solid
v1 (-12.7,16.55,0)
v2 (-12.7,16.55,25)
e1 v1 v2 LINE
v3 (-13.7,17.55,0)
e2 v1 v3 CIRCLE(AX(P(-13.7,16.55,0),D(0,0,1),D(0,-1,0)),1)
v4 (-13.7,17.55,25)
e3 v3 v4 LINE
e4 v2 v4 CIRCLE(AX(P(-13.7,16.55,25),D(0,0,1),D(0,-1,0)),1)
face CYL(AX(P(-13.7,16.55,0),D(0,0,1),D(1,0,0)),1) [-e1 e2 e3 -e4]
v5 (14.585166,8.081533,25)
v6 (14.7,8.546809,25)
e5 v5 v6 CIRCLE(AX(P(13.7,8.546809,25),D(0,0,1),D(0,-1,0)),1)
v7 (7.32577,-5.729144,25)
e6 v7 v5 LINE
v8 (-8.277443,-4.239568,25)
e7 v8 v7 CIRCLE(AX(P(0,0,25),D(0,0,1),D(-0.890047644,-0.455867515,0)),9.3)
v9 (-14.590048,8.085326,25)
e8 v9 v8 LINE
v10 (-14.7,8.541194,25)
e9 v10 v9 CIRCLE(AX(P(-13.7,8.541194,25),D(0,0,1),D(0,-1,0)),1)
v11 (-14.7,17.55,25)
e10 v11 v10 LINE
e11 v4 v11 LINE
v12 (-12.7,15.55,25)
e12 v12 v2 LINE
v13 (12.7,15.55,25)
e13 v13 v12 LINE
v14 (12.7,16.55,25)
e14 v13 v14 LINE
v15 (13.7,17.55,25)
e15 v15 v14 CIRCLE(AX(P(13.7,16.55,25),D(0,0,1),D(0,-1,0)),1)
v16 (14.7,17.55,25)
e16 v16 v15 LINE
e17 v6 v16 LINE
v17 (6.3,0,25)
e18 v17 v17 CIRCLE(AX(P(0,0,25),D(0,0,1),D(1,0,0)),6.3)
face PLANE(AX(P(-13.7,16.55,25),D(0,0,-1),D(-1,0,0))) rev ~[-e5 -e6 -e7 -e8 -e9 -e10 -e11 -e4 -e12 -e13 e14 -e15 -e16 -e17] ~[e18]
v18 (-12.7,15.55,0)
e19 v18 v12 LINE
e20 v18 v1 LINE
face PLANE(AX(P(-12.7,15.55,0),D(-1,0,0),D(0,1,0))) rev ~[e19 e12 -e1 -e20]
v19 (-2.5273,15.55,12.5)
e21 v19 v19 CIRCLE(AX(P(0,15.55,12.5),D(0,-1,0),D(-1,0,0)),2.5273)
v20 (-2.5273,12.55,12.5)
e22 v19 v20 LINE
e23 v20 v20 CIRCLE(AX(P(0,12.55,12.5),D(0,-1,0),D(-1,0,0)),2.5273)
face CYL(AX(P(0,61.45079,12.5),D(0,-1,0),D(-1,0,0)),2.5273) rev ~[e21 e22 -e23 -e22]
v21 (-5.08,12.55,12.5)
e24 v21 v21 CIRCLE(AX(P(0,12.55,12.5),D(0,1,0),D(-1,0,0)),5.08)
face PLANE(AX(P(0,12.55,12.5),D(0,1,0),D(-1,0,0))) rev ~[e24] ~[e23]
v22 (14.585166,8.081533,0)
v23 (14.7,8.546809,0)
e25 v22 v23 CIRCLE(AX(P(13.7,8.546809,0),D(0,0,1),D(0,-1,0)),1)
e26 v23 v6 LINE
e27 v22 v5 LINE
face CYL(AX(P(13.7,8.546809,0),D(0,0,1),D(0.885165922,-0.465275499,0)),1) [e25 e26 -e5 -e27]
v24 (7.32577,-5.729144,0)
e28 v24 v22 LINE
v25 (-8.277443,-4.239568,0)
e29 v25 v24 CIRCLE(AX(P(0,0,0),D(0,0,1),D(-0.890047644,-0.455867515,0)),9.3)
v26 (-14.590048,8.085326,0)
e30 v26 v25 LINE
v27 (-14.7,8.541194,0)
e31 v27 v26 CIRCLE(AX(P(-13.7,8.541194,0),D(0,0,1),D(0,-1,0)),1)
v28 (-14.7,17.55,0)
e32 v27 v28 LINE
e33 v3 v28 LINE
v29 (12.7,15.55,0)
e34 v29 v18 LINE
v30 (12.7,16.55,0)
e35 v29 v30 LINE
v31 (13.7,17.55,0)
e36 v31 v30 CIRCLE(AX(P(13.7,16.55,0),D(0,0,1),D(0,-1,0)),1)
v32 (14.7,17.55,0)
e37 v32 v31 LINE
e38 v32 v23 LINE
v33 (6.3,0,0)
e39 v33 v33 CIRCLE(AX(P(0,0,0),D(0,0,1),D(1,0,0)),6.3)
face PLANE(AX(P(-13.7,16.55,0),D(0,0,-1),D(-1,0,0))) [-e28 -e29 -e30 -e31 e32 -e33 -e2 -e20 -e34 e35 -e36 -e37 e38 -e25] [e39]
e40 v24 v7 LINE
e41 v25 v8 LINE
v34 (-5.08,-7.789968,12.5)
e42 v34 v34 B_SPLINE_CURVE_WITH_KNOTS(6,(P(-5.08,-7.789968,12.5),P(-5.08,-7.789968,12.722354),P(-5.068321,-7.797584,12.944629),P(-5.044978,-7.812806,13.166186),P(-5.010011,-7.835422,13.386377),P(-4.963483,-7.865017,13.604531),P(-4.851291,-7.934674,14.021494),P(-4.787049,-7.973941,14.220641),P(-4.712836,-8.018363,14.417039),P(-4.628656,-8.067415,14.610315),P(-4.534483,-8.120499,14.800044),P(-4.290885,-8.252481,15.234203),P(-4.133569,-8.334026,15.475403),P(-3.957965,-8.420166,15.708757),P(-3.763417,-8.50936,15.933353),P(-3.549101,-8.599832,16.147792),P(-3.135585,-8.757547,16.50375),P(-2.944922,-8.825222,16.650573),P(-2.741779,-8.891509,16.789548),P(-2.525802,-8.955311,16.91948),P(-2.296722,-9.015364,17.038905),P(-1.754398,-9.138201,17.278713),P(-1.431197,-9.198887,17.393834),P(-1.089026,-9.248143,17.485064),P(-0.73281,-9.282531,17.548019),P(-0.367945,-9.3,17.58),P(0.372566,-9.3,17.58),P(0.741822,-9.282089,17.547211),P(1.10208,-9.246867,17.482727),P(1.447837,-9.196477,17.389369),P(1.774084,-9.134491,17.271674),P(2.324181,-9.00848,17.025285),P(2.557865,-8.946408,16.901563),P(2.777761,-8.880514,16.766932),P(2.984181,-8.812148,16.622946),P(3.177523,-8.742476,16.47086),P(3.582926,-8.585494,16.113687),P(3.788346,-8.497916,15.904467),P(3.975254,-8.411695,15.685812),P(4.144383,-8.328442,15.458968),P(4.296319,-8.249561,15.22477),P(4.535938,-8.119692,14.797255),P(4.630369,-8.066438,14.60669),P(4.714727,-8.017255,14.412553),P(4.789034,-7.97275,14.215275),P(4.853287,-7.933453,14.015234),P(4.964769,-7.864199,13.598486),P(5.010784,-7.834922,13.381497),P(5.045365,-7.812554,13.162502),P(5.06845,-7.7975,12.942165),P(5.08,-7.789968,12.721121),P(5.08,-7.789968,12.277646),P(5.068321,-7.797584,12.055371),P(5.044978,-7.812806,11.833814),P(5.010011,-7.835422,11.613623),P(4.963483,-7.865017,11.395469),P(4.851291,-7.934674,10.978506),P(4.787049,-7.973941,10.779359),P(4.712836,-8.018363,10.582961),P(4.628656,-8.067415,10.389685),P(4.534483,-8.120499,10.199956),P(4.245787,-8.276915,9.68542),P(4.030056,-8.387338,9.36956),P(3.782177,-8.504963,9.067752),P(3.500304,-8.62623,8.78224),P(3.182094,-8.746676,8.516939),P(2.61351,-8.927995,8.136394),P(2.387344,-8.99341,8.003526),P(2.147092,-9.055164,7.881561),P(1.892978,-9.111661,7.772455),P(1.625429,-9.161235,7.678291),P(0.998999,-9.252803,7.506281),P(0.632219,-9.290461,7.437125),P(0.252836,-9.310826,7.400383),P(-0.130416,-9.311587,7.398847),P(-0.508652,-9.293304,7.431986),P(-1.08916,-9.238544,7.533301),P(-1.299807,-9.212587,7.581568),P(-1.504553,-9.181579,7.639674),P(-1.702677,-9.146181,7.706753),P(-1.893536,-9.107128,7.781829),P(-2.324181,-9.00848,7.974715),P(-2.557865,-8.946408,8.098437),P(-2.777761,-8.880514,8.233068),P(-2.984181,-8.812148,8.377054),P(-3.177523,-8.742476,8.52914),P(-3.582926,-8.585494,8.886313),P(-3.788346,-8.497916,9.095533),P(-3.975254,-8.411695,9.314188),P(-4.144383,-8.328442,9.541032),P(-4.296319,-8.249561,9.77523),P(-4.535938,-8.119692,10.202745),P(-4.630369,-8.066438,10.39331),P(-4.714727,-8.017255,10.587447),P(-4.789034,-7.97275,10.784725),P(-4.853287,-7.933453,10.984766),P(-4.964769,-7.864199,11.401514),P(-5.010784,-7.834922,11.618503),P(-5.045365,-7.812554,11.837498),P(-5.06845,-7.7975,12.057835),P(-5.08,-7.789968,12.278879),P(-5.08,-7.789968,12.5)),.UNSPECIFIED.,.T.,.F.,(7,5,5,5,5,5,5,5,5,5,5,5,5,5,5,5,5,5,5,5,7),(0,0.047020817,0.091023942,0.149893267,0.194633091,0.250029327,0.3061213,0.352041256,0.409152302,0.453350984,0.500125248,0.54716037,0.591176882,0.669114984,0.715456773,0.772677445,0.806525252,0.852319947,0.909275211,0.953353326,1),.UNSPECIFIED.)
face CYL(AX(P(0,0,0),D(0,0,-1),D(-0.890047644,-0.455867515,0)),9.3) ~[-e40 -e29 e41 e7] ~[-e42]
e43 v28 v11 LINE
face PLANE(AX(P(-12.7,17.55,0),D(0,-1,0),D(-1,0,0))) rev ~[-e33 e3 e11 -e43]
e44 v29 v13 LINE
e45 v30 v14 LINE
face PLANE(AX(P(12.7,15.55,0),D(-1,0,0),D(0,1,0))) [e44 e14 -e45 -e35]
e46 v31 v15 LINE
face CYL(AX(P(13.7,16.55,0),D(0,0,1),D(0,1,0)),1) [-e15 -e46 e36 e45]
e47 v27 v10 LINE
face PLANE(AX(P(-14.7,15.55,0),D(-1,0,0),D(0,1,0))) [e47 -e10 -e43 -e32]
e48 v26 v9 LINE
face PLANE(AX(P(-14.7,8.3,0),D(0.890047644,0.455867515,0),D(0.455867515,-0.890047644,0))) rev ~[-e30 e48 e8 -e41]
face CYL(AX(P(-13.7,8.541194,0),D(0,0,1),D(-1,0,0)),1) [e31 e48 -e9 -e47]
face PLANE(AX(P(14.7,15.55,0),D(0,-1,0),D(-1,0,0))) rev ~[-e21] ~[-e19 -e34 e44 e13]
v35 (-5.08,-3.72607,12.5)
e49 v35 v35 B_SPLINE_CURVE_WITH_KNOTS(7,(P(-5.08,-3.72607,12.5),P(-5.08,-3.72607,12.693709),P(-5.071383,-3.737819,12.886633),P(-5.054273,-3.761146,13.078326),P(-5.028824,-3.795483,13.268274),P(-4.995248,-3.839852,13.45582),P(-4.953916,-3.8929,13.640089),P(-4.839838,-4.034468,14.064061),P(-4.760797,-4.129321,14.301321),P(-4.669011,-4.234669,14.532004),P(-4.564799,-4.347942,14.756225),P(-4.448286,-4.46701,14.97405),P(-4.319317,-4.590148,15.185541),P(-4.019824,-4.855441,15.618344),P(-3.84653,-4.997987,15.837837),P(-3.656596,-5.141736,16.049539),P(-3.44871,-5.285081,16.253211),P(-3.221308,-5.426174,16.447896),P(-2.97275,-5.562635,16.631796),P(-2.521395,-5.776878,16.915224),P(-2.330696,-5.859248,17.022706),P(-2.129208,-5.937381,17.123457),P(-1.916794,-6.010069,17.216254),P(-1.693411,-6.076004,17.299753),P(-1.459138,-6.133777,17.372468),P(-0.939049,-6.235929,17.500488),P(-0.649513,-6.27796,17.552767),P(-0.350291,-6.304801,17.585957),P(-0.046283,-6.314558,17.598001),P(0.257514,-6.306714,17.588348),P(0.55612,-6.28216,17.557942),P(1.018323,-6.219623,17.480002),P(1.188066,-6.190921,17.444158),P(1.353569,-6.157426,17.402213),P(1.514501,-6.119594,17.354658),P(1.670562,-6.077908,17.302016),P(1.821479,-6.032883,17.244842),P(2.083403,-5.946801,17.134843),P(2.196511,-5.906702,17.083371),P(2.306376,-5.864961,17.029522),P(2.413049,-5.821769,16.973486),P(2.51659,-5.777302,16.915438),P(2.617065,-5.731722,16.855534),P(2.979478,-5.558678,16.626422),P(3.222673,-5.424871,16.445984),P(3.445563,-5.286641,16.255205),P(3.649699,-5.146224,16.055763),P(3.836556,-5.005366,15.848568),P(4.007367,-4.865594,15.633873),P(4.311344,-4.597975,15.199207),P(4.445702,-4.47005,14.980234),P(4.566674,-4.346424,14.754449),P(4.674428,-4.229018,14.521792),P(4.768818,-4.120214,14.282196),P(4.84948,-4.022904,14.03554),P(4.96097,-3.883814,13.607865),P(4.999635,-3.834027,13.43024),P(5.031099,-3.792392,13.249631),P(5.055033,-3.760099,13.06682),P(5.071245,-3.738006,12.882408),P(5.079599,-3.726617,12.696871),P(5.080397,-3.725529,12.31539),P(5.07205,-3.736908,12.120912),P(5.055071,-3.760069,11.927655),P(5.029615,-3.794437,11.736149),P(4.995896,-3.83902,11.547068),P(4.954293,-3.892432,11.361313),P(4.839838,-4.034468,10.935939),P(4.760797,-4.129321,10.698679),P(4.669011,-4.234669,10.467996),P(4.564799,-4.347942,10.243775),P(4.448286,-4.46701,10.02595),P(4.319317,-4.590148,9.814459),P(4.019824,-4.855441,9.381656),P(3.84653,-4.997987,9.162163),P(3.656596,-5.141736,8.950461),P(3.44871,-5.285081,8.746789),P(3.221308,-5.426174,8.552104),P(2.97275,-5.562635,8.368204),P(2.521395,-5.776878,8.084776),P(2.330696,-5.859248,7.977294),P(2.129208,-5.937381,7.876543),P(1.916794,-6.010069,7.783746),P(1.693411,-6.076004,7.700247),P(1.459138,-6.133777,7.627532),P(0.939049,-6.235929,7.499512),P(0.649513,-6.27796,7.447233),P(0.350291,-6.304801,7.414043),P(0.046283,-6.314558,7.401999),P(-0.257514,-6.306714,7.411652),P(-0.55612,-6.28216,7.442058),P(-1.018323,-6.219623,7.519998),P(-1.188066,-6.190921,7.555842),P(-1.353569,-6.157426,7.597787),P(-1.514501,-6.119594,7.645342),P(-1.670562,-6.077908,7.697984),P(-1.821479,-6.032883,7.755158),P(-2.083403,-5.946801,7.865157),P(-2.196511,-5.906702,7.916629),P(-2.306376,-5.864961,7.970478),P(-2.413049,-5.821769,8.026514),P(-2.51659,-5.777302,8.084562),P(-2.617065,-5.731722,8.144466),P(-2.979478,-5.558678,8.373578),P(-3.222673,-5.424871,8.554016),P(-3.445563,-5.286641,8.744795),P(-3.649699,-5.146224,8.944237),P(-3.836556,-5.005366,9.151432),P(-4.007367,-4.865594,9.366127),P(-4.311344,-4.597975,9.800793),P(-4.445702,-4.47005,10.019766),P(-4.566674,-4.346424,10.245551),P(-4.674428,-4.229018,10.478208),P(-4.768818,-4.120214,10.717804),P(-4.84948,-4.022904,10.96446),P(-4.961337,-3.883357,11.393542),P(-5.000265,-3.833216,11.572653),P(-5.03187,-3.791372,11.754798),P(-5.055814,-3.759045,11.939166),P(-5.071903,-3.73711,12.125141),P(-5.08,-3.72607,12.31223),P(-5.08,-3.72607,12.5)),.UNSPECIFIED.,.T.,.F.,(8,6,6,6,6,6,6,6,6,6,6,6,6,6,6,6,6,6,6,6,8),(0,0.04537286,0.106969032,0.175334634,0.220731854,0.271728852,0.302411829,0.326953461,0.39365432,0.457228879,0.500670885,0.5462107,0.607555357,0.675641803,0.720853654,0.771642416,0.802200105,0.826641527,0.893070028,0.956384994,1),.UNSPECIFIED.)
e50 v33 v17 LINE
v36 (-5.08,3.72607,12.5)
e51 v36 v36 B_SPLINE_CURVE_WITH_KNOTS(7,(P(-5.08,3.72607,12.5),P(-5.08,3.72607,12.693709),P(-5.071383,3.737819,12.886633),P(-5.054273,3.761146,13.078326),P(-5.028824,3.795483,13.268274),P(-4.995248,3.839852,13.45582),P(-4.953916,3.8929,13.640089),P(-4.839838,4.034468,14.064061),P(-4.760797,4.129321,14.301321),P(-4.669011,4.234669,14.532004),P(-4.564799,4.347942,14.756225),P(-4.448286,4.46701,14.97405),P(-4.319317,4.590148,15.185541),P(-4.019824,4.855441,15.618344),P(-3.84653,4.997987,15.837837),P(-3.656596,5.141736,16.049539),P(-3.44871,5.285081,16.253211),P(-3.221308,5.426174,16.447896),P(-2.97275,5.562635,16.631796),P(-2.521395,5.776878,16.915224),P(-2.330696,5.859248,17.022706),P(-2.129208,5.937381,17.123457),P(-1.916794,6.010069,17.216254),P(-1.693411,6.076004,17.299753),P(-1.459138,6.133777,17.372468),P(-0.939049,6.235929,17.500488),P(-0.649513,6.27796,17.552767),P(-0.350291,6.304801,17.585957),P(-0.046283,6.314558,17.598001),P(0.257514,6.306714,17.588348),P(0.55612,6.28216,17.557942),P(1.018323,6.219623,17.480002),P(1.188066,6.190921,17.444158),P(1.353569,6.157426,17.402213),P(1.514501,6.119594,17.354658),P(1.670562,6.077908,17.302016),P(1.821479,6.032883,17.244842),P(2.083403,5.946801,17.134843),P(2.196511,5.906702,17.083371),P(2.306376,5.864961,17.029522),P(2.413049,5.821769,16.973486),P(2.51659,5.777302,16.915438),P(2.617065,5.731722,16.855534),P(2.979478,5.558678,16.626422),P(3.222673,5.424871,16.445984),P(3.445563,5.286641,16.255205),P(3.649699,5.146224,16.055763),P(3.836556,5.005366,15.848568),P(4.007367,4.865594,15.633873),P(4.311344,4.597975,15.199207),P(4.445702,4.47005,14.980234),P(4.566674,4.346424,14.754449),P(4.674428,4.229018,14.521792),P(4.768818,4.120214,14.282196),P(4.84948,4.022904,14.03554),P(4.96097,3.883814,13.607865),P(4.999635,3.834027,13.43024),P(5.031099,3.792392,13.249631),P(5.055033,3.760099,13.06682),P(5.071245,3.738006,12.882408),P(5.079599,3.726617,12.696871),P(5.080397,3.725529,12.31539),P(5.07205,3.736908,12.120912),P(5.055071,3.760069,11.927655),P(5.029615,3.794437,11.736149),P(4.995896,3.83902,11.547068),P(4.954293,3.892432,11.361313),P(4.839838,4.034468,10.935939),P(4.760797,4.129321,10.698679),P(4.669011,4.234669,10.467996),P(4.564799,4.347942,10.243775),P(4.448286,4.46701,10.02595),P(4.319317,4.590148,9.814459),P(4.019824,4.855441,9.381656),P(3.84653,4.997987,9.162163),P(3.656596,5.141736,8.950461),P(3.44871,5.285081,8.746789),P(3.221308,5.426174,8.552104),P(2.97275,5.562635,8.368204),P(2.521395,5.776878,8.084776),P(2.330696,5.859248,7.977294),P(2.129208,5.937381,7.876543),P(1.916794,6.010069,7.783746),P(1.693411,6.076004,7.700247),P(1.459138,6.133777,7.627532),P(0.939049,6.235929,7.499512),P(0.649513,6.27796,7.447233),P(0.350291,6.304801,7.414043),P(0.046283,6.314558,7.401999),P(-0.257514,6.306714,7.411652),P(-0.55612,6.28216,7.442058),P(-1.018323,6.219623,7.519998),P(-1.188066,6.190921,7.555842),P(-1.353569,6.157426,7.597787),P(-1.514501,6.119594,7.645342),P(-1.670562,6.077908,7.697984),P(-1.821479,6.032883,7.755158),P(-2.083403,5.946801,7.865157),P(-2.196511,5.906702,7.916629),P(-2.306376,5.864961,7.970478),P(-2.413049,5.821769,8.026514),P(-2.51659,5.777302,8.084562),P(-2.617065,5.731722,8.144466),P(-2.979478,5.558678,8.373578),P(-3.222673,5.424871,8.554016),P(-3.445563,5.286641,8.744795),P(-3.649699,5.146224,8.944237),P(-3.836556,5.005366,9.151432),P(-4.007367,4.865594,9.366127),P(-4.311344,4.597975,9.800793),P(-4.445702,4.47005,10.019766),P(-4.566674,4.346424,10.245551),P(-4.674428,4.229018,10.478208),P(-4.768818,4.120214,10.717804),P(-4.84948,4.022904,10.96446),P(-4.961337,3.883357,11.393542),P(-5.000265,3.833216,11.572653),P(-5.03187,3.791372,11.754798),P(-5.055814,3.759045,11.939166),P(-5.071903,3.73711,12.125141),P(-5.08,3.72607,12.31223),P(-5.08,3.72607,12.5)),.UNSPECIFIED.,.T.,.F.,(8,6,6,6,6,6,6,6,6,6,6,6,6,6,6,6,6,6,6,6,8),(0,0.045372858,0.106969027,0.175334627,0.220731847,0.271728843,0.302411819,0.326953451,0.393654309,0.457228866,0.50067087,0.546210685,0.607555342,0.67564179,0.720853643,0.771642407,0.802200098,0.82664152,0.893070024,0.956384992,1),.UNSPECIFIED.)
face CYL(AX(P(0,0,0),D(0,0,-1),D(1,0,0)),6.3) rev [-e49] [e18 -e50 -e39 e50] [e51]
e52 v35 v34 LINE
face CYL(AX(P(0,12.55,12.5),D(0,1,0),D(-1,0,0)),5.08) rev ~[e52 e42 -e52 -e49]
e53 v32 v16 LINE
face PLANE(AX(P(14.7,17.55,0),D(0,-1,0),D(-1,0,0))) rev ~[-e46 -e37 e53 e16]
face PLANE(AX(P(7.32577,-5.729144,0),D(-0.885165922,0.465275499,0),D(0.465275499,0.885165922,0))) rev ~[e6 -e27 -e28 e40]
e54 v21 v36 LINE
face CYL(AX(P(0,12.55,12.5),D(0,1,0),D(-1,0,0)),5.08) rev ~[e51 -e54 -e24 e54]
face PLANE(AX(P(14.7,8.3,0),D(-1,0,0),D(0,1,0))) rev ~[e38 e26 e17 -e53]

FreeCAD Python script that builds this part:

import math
import FreeCAD as App
import Part
import Sketcher
from FreeCAD import Vector


def edges_at(feature, points):
    """Names of the edges that pass closest to the given points."""
    edges = feature.Shape.Edges
    near = lambda p: min(range(len(edges)), key=lambda i: edges[i].distToShape(Part.Vertex(*p))[0])
    return sorted({f"Edge{near(p) + 1}" for p in points})


def add_polygon(sketch, points):
    """Adds a closed chain of lines whose ends are joined by coincident constraints."""
    first, n = sketch.GeometryCount, len(points)
    for a, b in zip(points, points[1:] + points[:1]):
        sketch.addGeometry(Part.LineSegment(App.Vector(*a, 0), App.Vector(*b, 0)), False)
    for i in range(n):
        sketch.addConstraint(Sketcher.Constraint("Coincident", first + i, 2, first + (i + 1) % n, 1))

doc = App.newDocument("Part")
params = doc.addObject("Spreadsheet::Sheet", "Params")
for row, (alias, value) in enumerate([
    ("sketch1_diameter", "12.6 mm"),
    ("sketch1_radius", "9.3 mm"),
    ("sketch1_width", "29.4 mm"),
    ("sketch1_height", "7.25 mm"),
    ("pad1_length", "25 mm"),
    ("hole_diameter", "5.0546 mm"),
    ("sketch3_diameter", "10.16 mm"),
    ("sketch4_width", "2 mm"),
    ("pad2_length", "25 mm"),
    ("fillet_radius", "1 mm"),
], start=1):
    params.set(f"A{row}", alias)
    params.set(f"B{row}", "=" + value)
    params.setAlias(f"B{row}", alias)

body = doc.addObject("PartDesign::Body", "Body")

sketch1 = doc.addObject("Sketcher::SketchObject", "Sketch")
body.addObject(sketch1)
sketch1.AttachmentSupport = (doc.XY_Plane, [""])
sketch1.MapMode = "FlatFace"
sketch1.addGeometry(Part.LineSegment(Vector(15, 8, 0), Vector(15, 16, 0)), False)
sketch1.addGeometry(Part.LineSegment(Vector(15, 16, 0), Vector(-15, 16, 0)), False)
sketch1.addGeometry(Part.LineSegment(Vector(-15, 16, 0), Vector(-15, 8, 0)), False)
sketch1.addGeometry(Part.LineSegment(Vector(-15, 8, 0), Vector(-8, -4, 0)), False)
sketch1.addGeometry(Part.ArcOfCircle(Part.Circle(Vector(0, 0, 0), Vector(0, 0, 1), 9), math.radians(-153), math.radians(-38)), False)
sketch1.addGeometry(Part.LineSegment(Vector(7, -6, 0), Vector(15, 8, 0)), False)
sketch1.addGeometry(Part.Circle(Vector(0, 0, 0), Vector(0, 0, 1), 6), False)
sketch1.addConstraint(Sketcher.Constraint("Coincident", 0, 2, 1, 1))
sketch1.addConstraint(Sketcher.Constraint("Coincident", 1, 2, 2, 1))
sketch1.addConstraint(Sketcher.Constraint("Coincident", 2, 2, 3, 1))
sketch1.addConstraint(Sketcher.Constraint("Tangent", 3, 2, 4, 1))
sketch1.addConstraint(Sketcher.Constraint("Coincident", 4, 2, 5, 1))
sketch1.addConstraint(Sketcher.Constraint("Coincident", 5, 2, 0, 1))
sketch1.addConstraint(Sketcher.Constraint("Vertical", 0))
sketch1.addConstraint(Sketcher.Constraint("Horizontal", 1))
sketch1.addConstraint(Sketcher.Constraint("Vertical", 2))
sketch1.addConstraint(Sketcher.Constraint("Coincident", 4, 3, -1, 1))
sketch1.addConstraint(Sketcher.Constraint("Coincident", 6, 3, -1, 1))
sketch1.addConstraint(Sketcher.Constraint("Symmetric", 2, 2, 5, 2, -2))
sketch1.addConstraint(Sketcher.Constraint("Diameter", 6, 12.6))
sketch1.addConstraint(Sketcher.Constraint("Radius", 4, 9.3))
sketch1.addConstraint(Sketcher.Constraint("DistanceX", 1, 2, 1, 1, 29.4))
sketch1.addConstraint(Sketcher.Constraint("DistanceY", 0, 1, 0, 2, 7.25))
sketch1.addConstraint(Sketcher.Constraint("DistanceY", -1, 1, 2, 2, 8.3))
sketch1.addConstraint(Sketcher.Constraint("Distance", 5, 15.849169))
sketch1.setExpression("Constraints[12]", "Params.sketch1_diameter")
sketch1.setExpression("Constraints[13]", "Params.sketch1_radius")
sketch1.setExpression("Constraints[14]", "Params.sketch1_width")
sketch1.setExpression("Constraints[15]", "Params.sketch1_height")
pad1 = doc.addObject("PartDesign::Pad", "Pad")
body.addObject(pad1)
pad1.Profile = sketch1
pad1.setExpression("Length", "Params.pad1_length")

sketch2 = doc.addObject("Sketcher::SketchObject", "Sketch001")
body.addObject(sketch2)
sketch2.AttachmentSupport = (doc.XZ_Plane, [""])
sketch2.MapMode = "FlatFace"
sketch2.AttachmentOffset = App.Placement(Vector(0, 0, -15.55), App.Rotation())
sketch2.addGeometry(Part.Circle(Vector(0, 12.5, 0), Vector(0, 0, 1), 2.5), False)
sketch2.addConstraint(Sketcher.Constraint("PointOnObject", 0, 3, -2))
sketch2.addConstraint(Sketcher.Constraint("Diameter", 0, 5.0546))
sketch2.addConstraint(Sketcher.Constraint("DistanceY", -1, 1, 0, 3, 12.5))
doc.recompute()
hole = doc.addObject("PartDesign::Hole", "Hole")
body.addObject(hole)
hole.Profile = sketch2
hole.ThreadType = "None"
hole.setExpression("Diameter", "Params.hole_diameter")
hole.DepthType = "ThroughAll"
hole.Reversed = True

sketch3 = doc.addObject("Sketcher::SketchObject", "Sketch002")
body.addObject(sketch3)
sketch3.AttachmentSupport = (doc.XZ_Plane, [""])
sketch3.MapMode = "FlatFace"
sketch3.AttachmentOffset = App.Placement(Vector(0, 0, -12.55), App.Rotation())
sketch3.addGeometry(Part.Circle(Vector(0, 12, 0), Vector(0, 0, 1), 5), False)
sketch3.addConstraint(Sketcher.Constraint("PointOnObject", 0, 3, -2))
sketch3.addConstraint(Sketcher.Constraint("Diameter", 0, 10.16))
sketch3.addConstraint(Sketcher.Constraint("DistanceY", -1, 1, 0, 3, 12.5))
sketch3.setExpression("Constraints[1]", "Params.sketch3_diameter")
pocket1 = doc.addObject("PartDesign::Pocket", "Pocket")
body.addObject(pocket1)
pocket1.Profile = sketch3
pocket1.Type = "ThroughAll"
pocket1.Reversed = True

sketch4 = doc.addObject("Sketcher::SketchObject", "Sketch003")
body.addObject(sketch4)
sketch4.AttachmentSupport = (doc.XY_Plane, [""])
sketch4.MapMode = "FlatFace"
add_polygon(sketch4, [(-12.7, 17.6), (-12.7, 15.6), (-14.7, 15.6), (-14.7, 17.6)])
add_polygon(sketch4, [(14.7, 17.6), (14.7, 15.6), (12.7, 15.6), (12.7, 17.6)])
sketch4.addConstraint(Sketcher.Constraint("Vertical", 0))
sketch4.addConstraint(Sketcher.Constraint("Horizontal", 1))
sketch4.addConstraint(Sketcher.Constraint("Vertical", 2))
sketch4.addConstraint(Sketcher.Constraint("Horizontal", 3))
sketch4.addConstraint(Sketcher.Constraint("Vertical", 4))
sketch4.addConstraint(Sketcher.Constraint("Horizontal", 5))
sketch4.addConstraint(Sketcher.Constraint("Vertical", 6))
sketch4.addConstraint(Sketcher.Constraint("Horizontal", 7))
sketch4.addConstraint(Sketcher.Constraint("Symmetric", 1, 2, 4, 2, -2))
sketch4.addConstraint(Sketcher.Constraint("Symmetric", 3, 2, 6, 2, -2))
sketch4.addConstraint(Sketcher.Constraint("Equal", 7, 0))
sketch4.addConstraint(Sketcher.Constraint("DistanceX", 1, 2, 1, 1, 2.0))
sketch4.addConstraint(Sketcher.Constraint("DistanceX", 0, 2, -1, 1, 12.7))
sketch4.addConstraint(Sketcher.Constraint("DistanceY", -1, 1, 0, 2, 15.55))
sketch4.setExpression("Constraints[19]", "Params.sketch4_width")
pad2 = doc.addObject("PartDesign::Pad", "Pad001")
body.addObject(pad2)
pad2.Profile = sketch4
pad2.setExpression("Length", "Params.pad2_length")
doc.recompute()

fillet = doc.addObject("PartDesign::Fillet", "Fillet")
body.addObject(fillet)
fillet.Base = (pad2, edges_at(pad2, [
    (-14.7, 8.3, 12.5),
    (14.7, 8.3, 12.5),
    (-12.7, 17.55, 12.5),
    (12.7, 17.55, 12.5),
]))
fillet.setExpression("Radius", "Params.fillet_radius")

doc.recompute()
